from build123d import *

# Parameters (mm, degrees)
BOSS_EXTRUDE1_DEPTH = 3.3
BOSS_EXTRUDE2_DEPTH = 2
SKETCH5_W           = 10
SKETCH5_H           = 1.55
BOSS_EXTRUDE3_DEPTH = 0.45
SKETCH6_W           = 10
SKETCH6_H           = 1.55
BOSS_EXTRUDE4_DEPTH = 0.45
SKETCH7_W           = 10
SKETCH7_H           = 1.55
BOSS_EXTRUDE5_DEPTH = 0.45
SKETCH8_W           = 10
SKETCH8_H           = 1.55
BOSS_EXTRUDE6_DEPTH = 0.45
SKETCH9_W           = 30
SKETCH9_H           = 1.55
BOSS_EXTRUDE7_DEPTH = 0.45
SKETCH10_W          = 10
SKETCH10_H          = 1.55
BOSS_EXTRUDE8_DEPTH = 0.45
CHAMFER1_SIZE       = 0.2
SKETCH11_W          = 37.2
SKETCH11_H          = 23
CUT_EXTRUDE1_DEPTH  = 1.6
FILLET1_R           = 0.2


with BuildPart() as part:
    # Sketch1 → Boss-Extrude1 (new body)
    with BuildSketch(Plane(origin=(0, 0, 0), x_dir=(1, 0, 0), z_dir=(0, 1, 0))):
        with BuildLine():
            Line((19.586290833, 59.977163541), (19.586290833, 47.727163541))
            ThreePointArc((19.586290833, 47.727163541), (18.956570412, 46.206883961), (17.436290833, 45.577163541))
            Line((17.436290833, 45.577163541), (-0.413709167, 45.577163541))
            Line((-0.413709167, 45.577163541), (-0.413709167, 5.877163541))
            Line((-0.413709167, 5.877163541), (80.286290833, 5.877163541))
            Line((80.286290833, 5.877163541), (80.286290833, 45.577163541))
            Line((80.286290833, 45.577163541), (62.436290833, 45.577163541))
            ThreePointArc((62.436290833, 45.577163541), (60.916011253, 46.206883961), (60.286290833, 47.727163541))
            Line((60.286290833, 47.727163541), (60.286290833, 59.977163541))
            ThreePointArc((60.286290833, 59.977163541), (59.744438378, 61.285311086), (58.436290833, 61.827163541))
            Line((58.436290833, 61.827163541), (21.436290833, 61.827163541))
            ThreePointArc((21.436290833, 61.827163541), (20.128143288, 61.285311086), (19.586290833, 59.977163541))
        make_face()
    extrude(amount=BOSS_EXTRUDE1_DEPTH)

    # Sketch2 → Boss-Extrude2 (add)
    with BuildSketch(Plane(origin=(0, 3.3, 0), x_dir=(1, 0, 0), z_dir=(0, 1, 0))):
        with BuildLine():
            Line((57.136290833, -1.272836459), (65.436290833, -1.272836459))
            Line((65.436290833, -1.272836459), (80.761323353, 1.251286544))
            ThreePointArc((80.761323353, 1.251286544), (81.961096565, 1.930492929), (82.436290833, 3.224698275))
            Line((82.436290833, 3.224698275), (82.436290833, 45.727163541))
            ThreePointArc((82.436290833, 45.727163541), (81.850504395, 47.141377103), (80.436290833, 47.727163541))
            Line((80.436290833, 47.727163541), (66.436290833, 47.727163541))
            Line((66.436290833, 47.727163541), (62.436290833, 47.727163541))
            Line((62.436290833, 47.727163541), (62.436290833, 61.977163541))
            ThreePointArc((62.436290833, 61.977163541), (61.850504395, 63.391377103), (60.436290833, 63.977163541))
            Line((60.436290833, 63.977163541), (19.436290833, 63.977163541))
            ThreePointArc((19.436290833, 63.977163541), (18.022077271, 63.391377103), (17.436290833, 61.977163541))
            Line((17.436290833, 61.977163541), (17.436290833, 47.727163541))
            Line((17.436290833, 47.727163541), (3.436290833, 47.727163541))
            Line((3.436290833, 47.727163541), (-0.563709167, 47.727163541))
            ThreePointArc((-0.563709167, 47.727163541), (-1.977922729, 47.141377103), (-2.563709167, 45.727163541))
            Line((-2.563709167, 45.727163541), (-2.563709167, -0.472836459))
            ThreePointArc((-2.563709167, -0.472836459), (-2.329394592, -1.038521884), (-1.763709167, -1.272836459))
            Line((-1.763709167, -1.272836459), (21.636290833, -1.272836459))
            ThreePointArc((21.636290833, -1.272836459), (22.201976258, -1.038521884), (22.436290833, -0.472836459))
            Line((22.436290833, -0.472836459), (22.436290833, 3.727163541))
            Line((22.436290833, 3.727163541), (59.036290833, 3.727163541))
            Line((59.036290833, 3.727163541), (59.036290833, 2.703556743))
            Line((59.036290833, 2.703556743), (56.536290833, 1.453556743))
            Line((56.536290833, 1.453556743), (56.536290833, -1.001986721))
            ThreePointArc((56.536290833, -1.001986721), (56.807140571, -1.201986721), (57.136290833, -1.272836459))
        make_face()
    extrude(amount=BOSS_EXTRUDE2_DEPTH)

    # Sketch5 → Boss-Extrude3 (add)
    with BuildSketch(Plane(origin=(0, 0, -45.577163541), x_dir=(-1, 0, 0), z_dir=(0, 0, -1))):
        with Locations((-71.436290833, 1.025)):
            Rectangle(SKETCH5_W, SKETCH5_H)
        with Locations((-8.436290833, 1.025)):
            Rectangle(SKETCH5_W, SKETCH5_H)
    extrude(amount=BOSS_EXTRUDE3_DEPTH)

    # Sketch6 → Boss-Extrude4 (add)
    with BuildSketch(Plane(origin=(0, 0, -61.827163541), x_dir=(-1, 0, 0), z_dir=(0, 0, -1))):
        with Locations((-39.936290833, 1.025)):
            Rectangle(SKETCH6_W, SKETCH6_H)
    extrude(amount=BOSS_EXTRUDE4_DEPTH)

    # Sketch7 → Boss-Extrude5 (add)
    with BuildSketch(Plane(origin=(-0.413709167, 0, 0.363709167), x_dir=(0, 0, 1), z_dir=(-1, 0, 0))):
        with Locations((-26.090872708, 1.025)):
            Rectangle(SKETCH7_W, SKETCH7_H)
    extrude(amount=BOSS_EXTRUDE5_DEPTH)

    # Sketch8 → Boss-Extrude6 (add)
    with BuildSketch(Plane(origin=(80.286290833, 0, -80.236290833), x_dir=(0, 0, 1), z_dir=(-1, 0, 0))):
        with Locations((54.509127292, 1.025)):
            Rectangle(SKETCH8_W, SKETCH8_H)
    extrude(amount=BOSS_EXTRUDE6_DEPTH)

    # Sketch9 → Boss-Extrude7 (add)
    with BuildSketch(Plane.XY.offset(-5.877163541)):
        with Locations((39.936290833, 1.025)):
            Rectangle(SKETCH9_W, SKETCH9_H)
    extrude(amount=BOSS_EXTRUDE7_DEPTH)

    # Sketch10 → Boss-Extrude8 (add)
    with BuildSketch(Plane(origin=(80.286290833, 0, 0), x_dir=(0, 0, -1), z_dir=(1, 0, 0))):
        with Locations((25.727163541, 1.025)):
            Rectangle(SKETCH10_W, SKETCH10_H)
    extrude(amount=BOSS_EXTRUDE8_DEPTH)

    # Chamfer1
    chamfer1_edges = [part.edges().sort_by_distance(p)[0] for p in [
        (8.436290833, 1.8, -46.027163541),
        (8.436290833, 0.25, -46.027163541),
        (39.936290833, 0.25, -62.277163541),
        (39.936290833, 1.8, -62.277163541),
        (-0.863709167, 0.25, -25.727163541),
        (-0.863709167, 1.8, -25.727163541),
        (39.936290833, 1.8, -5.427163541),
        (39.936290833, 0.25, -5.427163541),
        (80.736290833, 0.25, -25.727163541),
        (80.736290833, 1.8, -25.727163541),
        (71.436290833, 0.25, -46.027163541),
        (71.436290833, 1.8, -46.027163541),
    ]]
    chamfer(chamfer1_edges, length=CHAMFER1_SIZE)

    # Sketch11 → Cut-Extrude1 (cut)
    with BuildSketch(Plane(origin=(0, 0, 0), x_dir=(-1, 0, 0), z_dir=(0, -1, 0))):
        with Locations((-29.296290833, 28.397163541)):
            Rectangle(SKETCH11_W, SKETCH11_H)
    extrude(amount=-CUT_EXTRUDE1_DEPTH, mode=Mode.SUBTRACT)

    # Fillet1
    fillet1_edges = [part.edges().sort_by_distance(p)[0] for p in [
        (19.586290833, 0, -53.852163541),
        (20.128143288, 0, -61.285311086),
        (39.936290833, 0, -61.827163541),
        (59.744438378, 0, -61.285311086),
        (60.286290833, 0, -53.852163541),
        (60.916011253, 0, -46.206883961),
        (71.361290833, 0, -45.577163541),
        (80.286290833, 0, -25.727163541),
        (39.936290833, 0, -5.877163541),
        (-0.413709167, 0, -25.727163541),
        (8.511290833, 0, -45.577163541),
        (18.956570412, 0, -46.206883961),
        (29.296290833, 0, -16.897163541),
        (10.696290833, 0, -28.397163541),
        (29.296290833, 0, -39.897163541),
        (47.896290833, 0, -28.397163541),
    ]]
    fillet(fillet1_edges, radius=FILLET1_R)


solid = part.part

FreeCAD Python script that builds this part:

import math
import FreeCAD as App
import Part
import Sketcher

V = App.Vector


def edges_at(feature, points):
    """Names of the edges that pass closest to the given points."""
    edges = feature.Shape.Edges
    near = lambda p: min(range(len(edges)), key=lambda i: edges[i].distToShape(Part.Vertex(*p))[0])
    return sorted({f"Edge{near(p) + 1}" for p in points})

doc = App.newDocument("Part")
body = doc.addObject("PartDesign::Body", "Body")

# Sketch on XZ plane
sketch1 = body.newObject("Sketcher::SketchObject", "Sketch")
sketch1.AttachmentSupport = (doc.getObject("XZ_Plane"), [""])
sketch1.MapMode = "FlatFace"
sketch1.addGeometry(Part.LineSegment(V(19.6, -60, 0), V(19.6, -47.7, 0)), False)
sketch1.addGeometry(Part.ArcOfCircle(Part.Circle(V(17.4, -47.7, 0), V(0, 0, 1), 2.1), math.radians(0), math.radians(90)), False)
sketch1.addGeometry(Part.LineSegment(V(17.4, -45.6, 0), V(-0.4, -45.6, 0)), False)
sketch1.addGeometry(Part.LineSegment(V(-0.4, -45.6, 0), V(-0.4, -5.9, 0)), False)
sketch1.addGeometry(Part.LineSegment(V(-0.4, -5.9, 0), V(80.3, -5.9, 0)), False)
sketch1.addGeometry(Part.LineSegment(V(80.3, -5.9, 0), V(80.3, -45.6, 0)), False)
sketch1.addGeometry(Part.LineSegment(V(80.3, -45.6, 0), V(62.4, -45.6, 0)), False)
sketch1.addGeometry(Part.ArcOfCircle(Part.Circle(V(62.4, -47.7, 0), V(0, 0, 1), 2.1), math.radians(90), math.radians(180)), False)
sketch1.addGeometry(Part.LineSegment(V(60.3, -47.7, 0), V(60.3, -60, 0)), False)
sketch1.addGeometry(Part.ArcOfCircle(Part.Circle(V(58.4, -60, 0), V(0, 0, 1), 1.9), math.radians(-90), math.radians(0)), False)
sketch1.addGeometry(Part.LineSegment(V(58.4, -61.8, 0), V(21.4, -61.8, 0)), False)
sketch1.addGeometry(Part.ArcOfCircle(Part.Circle(V(21.4, -60, 0), V(0, 0, 1), 1.9), math.radians(-180), math.radians(-90)), False)
sketch1.addConstraint(Sketcher.Constraint("Tangent", 0, 2, 1, 1))
sketch1.addConstraint(Sketcher.Constraint("Tangent", 1, 2, 2, 1))
sketch1.addConstraint(Sketcher.Constraint("Coincident", 2, 2, 3, 1))
sketch1.addConstraint(Sketcher.Constraint("Coincident", 3, 2, 4, 1))
sketch1.addConstraint(Sketcher.Constraint("Coincident", 4, 2, 5, 1))
sketch1.addConstraint(Sketcher.Constraint("Coincident", 5, 2, 6, 1))
sketch1.addConstraint(Sketcher.Constraint("Tangent", 6, 2, 7, 1))
sketch1.addConstraint(Sketcher.Constraint("Tangent", 7, 2, 8, 1))
sketch1.addConstraint(Sketcher.Constraint("Tangent", 8, 2, 9, 2))
sketch1.addConstraint(Sketcher.Constraint("Tangent", 9, 1, 10, 1))
sketch1.addConstraint(Sketcher.Constraint("Tangent", 10, 2, 11, 2))
sketch1.addConstraint(Sketcher.Constraint("Tangent", 11, 1, 0, 1))
sketch1.addConstraint(Sketcher.Constraint("Vertical", 0))
sketch1.addConstraint(Sketcher.Constraint("Horizontal", 2))
sketch1.addConstraint(Sketcher.Constraint("Vertical", 3))
sketch1.addConstraint(Sketcher.Constraint("Horizontal", 4))
sketch1.addConstraint(Sketcher.Constraint("Vertical", 5))
sketch1.addConstraint(Sketcher.Constraint("Horizontal", 6))
sketch1.addConstraint(Sketcher.Constraint("Vertical", 8))
sketch1.addConstraint(Sketcher.Constraint("Horizontal", 10))
sketch1.addConstraint(Sketcher.Constraint("Equal", 1, 7))
sketch1.addConstraint(Sketcher.Constraint("Equal", 9, 11))
sketch1.addConstraint(Sketcher.Constraint("Horizontal", 1, 3, 7, 3))
sketch1.addConstraint(Sketcher.Constraint("Equal", 2, 6))
sketch1.addConstraint(Sketcher.Constraint("DistanceX", 10, 2, 10, 1, 37.0))
sketch1.addConstraint(Sketcher.Constraint("Radius", 1, 2.15))
sketch1.addConstraint(Sketcher.Constraint("Radius", 9, 1.85))
sketch1.addConstraint(Sketcher.Constraint("DistanceX", 4, 1, 4, 2, 80.7))
sketch1.addConstraint(Sketcher.Constraint("DistanceY", 3, 1, 3, 2, 39.7))
sketch1.addConstraint(Sketcher.Constraint("DistanceY", 0, 1, 0, 2, 12.25))
sketch1.addConstraint(Sketcher.Constraint("DistanceX", -1, 1, 1, 3, 17.436291))
sketch1.addConstraint(Sketcher.Constraint("DistanceY", 1, 3, -1, 1, 47.727164))
pad1 = body.newObject("PartDesign::Pad", "Pad")
pad1.Profile = sketch1
pad1.Length = 3.3
pad1.Reversed = True

# Sketch on XZ plane
sketch2 = body.newObject("Sketcher::SketchObject", "Sketch001")
sketch2.AttachmentSupport = (doc.getObject("XZ_Plane"), [""])
sketch2.MapMode = "FlatFace"
sketch2.AttachmentOffset = App.Placement(V(0, 0, -3.3), App.Rotation())
sketch2.addGeometry(Part.LineSegment(V(57.1, 1.3, 0), V(65.4, 1.3, 0)), False)
sketch2.addGeometry(Part.LineSegment(V(65.4, 1.3, 0), V(80.8, -1.3, 0)), False)
sketch2.addGeometry(Part.ArcOfCircle(Part.Circle(V(80.4, -3.2, 0), V(0, 0, 1), 2), math.radians(0), math.radians(81)), False)
sketch2.addGeometry(Part.LineSegment(V(82.4, -3.2, 0), V(82.4, -45.7, 0)), False)
sketch2.addGeometry(Part.ArcOfCircle(Part.Circle(V(80.4, -45.7, 0), V(0, 0, 1), 2), math.radians(-90), math.radians(0)), False)
sketch2.addGeometry(Part.LineSegment(V(80.4, -47.7, 0), V(62.4, -47.7, 0)), False)
sketch2.addGeometry(Part.LineSegment(V(62.4, -47.7, 0), V(62.4, -62, 0)), False)
sketch2.addGeometry(Part.ArcOfCircle(Part.Circle(V(60.4, -62, 0), V(0, 0, 1), 2), math.radians(-90), math.radians(0)), False)
sketch2.addGeometry(Part.LineSegment(V(60.4, -64, 0), V(19.4, -64, 0)), False)
sketch2.addGeometry(Part.ArcOfCircle(Part.Circle(V(19.4, -62, 0), V(0, 0, 1), 2), math.radians(-180), math.radians(-90)), False)
sketch2.addGeometry(Part.LineSegment(V(17.4, -62, 0), V(17.4, -47.7, 0)), False)
sketch2.addGeometry(Part.LineSegment(V(17.4, -47.7, 0), V(-0.6, -47.7, 0)), False)
sketch2.addGeometry(Part.ArcOfCircle(Part.Circle(V(-0.6, -45.7, 0), V(0, 0, 1), 2), math.radians(-180), math.radians(-90)), False)
sketch2.addGeometry(Part.LineSegment(V(-2.6, -45.7, 0), V(-2.6, 0.5, 0)), False)
sketch2.addGeometry(Part.ArcOfCircle(Part.Circle(V(-1.8, 0.5, 0), V(0, 0, 1), 0.8), math.radians(90), math.radians(180)), False)
sketch2.addGeometry(Part.LineSegment(V(-1.8, 1.3, 0), V(21.6, 1.3, 0)), False)
sketch2.addGeometry(Part.ArcOfCircle(Part.Circle(V(21.6, 0.5, 0), V(0, 0, 1), 0.8), math.radians(0), math.radians(90)), False)
sketch2.addGeometry(Part.LineSegment(V(22.4, 0.5, 0), V(22.4, -3.7, 0)), False)
sketch2.addGeometry(Part.LineSegment(V(22.4, -3.7, 0), V(59, -3.7, 0)), False)
sketch2.addGeometry(Part.LineSegment(V(59, -3.7, 0), V(59, -2.7, 0)), False)
sketch2.addGeometry(Part.LineSegment(V(59, -2.7, 0), V(56.5, -1.5, 0)), False)
sketch2.addGeometry(Part.LineSegment(V(56.5, -1.5, 0), V(56.5, 1, 0)), False)
sketch2.addGeometry(Part.ArcOfCircle(Part.Circle(V(57.1, 0.5, 0), V(0, 0, 1), 0.8), math.radians(90), math.radians(139)), False)
sketch2.addConstraint(Sketcher.Constraint("Coincident", 0, 2, 1, 1))
sketch2.addConstraint(Sketcher.Constraint("Tangent", 1, 2, 2, 2))
sketch2.addConstraint(Sketcher.Constraint("Tangent", 2, 1, 3, 1))
sketch2.addConstraint(Sketcher.Constraint("Tangent", 3, 2, 4, 2))
sketch2.addConstraint(Sketcher.Constraint("Tangent", 4, 1, 5, 1))
sketch2.addConstraint(Sketcher.Constraint("Coincident", 5, 2, 6, 1))
sketch2.addConstraint(Sketcher.Constraint("Tangent", 6, 2, 7, 2))
sketch2.addConstraint(Sketcher.Constraint("Tangent", 7, 1, 8, 1))
sketch2.addConstraint(Sketcher.Constraint("Tangent", 8, 2, 9, 2))
sketch2.addConstraint(Sketcher.Constraint("Tangent", 9, 1, 10, 1))
sketch2.addConstraint(Sketcher.Constraint("Coincident", 10, 2, 11, 1))
sketch2.addConstraint(Sketcher.Constraint("Tangent", 11, 2, 12, 2))
sketch2.addConstraint(Sketcher.Constraint("Tangent", 12, 1, 13, 1))
sketch2.addConstraint(Sketcher.Constraint("Tangent", 13, 2, 14, 2))
sketch2.addConstraint(Sketcher.Constraint("Tangent", 14, 1, 15, 1))
sketch2.addConstraint(Sketcher.Constraint("Tangent", 15, 2, 16, 2))
sketch2.addConstraint(Sketcher.Constraint("Tangent", 16, 1, 17, 1))
sketch2.addConstraint(Sketcher.Constraint("Coincident", 17, 2, 18, 1))
sketch2.addConstraint(Sketcher.Constraint("Coincident", 18, 2, 19, 1))
sketch2.addConstraint(Sketcher.Constraint("Coincident", 19, 2, 20, 1))
sketch2.addConstraint(Sketcher.Constraint("Coincident", 20, 2, 21, 1))
sketch2.addConstraint(Sketcher.Constraint("Coincident", 21, 2, 22, 2))
sketch2.addConstraint(Sketcher.Constraint("Tangent", 22, 1, 0, 1))
sketch2.addConstraint(Sketcher.Constraint("Horizontal", 0))
sketch2.addConstraint(Sketcher.Constraint("Vertical", 3))
sketch2.addConstraint(Sketcher.Constraint("Horizontal", 5))
sketch2.addConstraint(Sketcher.Constraint("Vertical", 6))
sketch2.addConstraint(Sketcher.Constraint("Horizontal", 8))
sketch2.addConstraint(Sketcher.Constraint("Vertical", 10))
sketch2.addConstraint(Sketcher.Constraint("Horizontal", 11))
sketch2.addConstraint(Sketcher.Constraint("Vertical", 13))
sketch2.addConstraint(Sketcher.Constraint("Horizontal", 15))
sketch2.addConstraint(Sketcher.Constraint("Vertical", 17))
sketch2.addConstraint(Sketcher.Constraint("Horizontal", 18))
sketch2.addConstraint(Sketcher.Constraint("Vertical", 19))
sketch2.addConstraint(Sketcher.Constraint("Vertical", 21))
sketch2.addConstraint(Sketcher.Constraint("Equal", 2, 4))
sketch2.addConstraint(Sketcher.Constraint("Equal", 4, 7))
sketch2.addConstraint(Sketcher.Constraint("Equal", 7, 9))
sketch2.addConstraint(Sketcher.Constraint("Equal", 9, 12))
sketch2.addConstraint(Sketcher.Constraint("Equal", 14, 16))
sketch2.addConstraint(Sketcher.Constraint("Equal", 16, 22))
sketch2.addConstraint(Sketcher.Constraint("Horizontal", 4, 3, 12, 3))
sketch2.addConstraint(Sketcher.Constraint("Horizontal", 16, 3, 22, 3))
sketch2.addConstraint(Sketcher.Constraint("Equal", 5, 11))
sketch2.addConstraint(Sketcher.Constraint("Radius", 2, 2.0))
sketch2.addConstraint(Sketcher.Constraint("Radius", 14, 0.8))
sketch2.addConstraint(Sketcher.Constraint("DistanceX", 5, 2, 5, 1, 18.0))
sketch2.addConstraint(Sketcher.Constraint("DistanceX", 8, 2, 8, 1, 41.0))
sketch2.addConstraint(Sketcher.Constraint("DistanceX", 0, 1, 0, 2, 8.3))
sketch2.addConstraint(Sketcher.Constraint("DistanceX", 15, 1, 15, 2, 23.4))
sketch2.addConstraint(Sketcher.Constraint("DistanceX", 18, 1, 18, 2, 36.6))
sketch2.addConstraint(Sketcher.Constraint("DistanceY", 13, 1, 13, 2, 46.2))
sketch2.addConstraint(Sketcher.Constraint("DistanceY", 17, 2, 17, 1, 4.2))
sketch2.addConstraint(Sketcher.Constraint("DistanceX", 0, 2, 2, 3, 15.0))
sketch2.addConstraint(Sketcher.Constraint("DistanceY", 6, 2, 6, 1, 14.25))
sketch2.addConstraint(Sketcher.Constraint("DistanceX", 20, 2, 22, 3, 0.6))
sketch2.addConstraint(Sketcher.Constraint("DistanceY", 19, 2, 20, 2, 1.25))
sketch2.addConstraint(Sketcher.Constraint("DistanceY", 2, 3, -1, 1, 3.224698))
sketch2.addConstraint(Sketcher.Constraint("Distance", 1, 15.531511))
sketch2.addConstraint(Sketcher.Constraint("DistanceY", 19, 1, 19, 2, 1.023607))
sketch2.addConstraint(Sketcher.Constraint("DistanceX", -1, 1, 2, 3, 80.436291))
pad2 = body.newObject("PartDesign::Pad", "Pad001")
pad2.Profile = sketch2
pad2.Length = 2
pad2.Reversed = True

# Sketch on XY plane
sketch3 = body.newObject("Sketcher::SketchObject", "Sketch002")
sketch3.AttachmentSupport = (doc.getObject("XY_Plane"), [""])
sketch3.MapMode = "FlatFace"
sketch3.AttachmentOffset = App.Placement(V(0, 0, -45.577164), App.Rotation())
sketch3.addGeometry(Part.LineSegment(V(76.4, 1.8, 0), V(76.4, 0.2, 0)), False)
sketch3.addGeometry(Part.LineSegment(V(76.4, 0.2, 0), V(66.4, 0.2, 0)), False)
sketch3.addGeometry(Part.LineSegment(V(66.4, 0.2, 0), V(66.4, 1.8, 0)), False)
sketch3.addGeometry(Part.LineSegment(V(66.4, 1.8, 0), V(76.4, 1.8, 0)), False)
sketch3.addGeometry(Part.LineSegment(V(13.4, 1.8, 0), V(13.4, 0.2, 0)), False)
sketch3.addGeometry(Part.LineSegment(V(13.4, 0.2, 0), V(3.4, 0.2, 0)), False)
sketch3.addGeometry(Part.LineSegment(V(3.4, 0.2, 0), V(3.4, 1.8, 0)), False)
sketch3.addGeometry(Part.LineSegment(V(3.4, 1.8, 0), V(13.4, 1.8, 0)), False)
sketch3.addConstraint(Sketcher.Constraint("Coincident", 0, 2, 1, 1))
sketch3.addConstraint(Sketcher.Constraint("Coincident", 1, 2, 2, 1))
sketch3.addConstraint(Sketcher.Constraint("Coincident", 2, 2, 3, 1))
sketch3.addConstraint(Sketcher.Constraint("Coincident", 3, 2, 0, 1))
sketch3.addConstraint(Sketcher.Constraint("Coincident", 4, 2, 5, 1))
sketch3.addConstraint(Sketcher.Constraint("Coincident", 5, 2, 6, 1))
sketch3.addConstraint(Sketcher.Constraint("Coincident", 6, 2, 7, 1))
sketch3.addConstraint(Sketcher.Constraint("Coincident", 7, 2, 4, 1))
sketch3.addConstraint(Sketcher.Constraint("Vertical", 0))
sketch3.addConstraint(Sketcher.Constraint("Horizontal", 1))
sketch3.addConstraint(Sketcher.Constraint("Vertical", 2))
sketch3.addConstraint(Sketcher.Constraint("Horizontal", 3))
sketch3.addConstraint(Sketcher.Constraint("Vertical", 4))
sketch3.addConstraint(Sketcher.Constraint("Horizontal", 5))
sketch3.addConstraint(Sketcher.Constraint("Vertical", 6))
sketch3.addConstraint(Sketcher.Constraint("Horizontal", 7))
sketch3.addConstraint(Sketcher.Constraint("Horizontal", 1, 2, 4, 2))
sketch3.addConstraint(Sketcher.Constraint("Horizontal", 3, 2, 6, 2))
sketch3.addConstraint(Sketcher.Constraint("Equal", 3, 5))
sketch3.addConstraint(Sketcher.Constraint("DistanceX", 1, 2, 1, 1, 10.0))
sketch3.addConstraint(Sketcher.Constraint("DistanceX", 4, 2, 1, 2, 53.0))
sketch3.addConstraint(Sketcher.Constraint("DistanceY", 0, 2, 0, 1, 1.55))
sketch3.addConstraint(Sketcher.Constraint("DistanceY", -1, 1, 2, 2, 1.8))
sketch3.addConstraint(Sketcher.Constraint("DistanceX", -1, 1, 0, 2, 76.436291))
pad3 = body.newObject("PartDesign::Pad", "Pad002")
pad3.Profile = sketch3
pad3.Length = 0.45
pad3.Reversed = True

# Sketch on XY plane
sketch4 = body.newObject("Sketcher::SketchObject", "Sketch003")
sketch4.AttachmentSupport = (doc.getObject("XY_Plane"), [""])
sketch4.MapMode = "FlatFace"
sketch4.AttachmentOffset = App.Placement(V(0, 0, -61.827164), App.Rotation())
sketch4.addGeometry(Part.LineSegment(V(44.9, 1.8, 0), V(44.9, 0.2, 0)), False)
sketch4.addGeometry(Part.LineSegment(V(44.9, 0.2, 0), V(34.9, 0.2, 0)), False)
sketch4.addGeometry(Part.LineSegment(V(34.9, 0.2, 0), V(34.9, 1.8, 0)), False)
sketch4.addGeometry(Part.LineSegment(V(34.9, 1.8, 0), V(44.9, 1.8, 0)), False)
sketch4.addConstraint(Sketcher.Constraint("Coincident", 0, 2, 1, 1))
sketch4.addConstraint(Sketcher.Constraint("Coincident", 1, 2, 2, 1))
sketch4.addConstraint(Sketcher.Constraint("Coincident", 2, 2, 3, 1))
sketch4.addConstraint(Sketcher.Constraint("Coincident", 3, 2, 0, 1))
sketch4.addConstraint(Sketcher.Constraint("Vertical", 0))
sketch4.addConstraint(Sketcher.Constraint("Horizontal", 1))
sketch4.addConstraint(Sketcher.Constraint("Vertical", 2))
sketch4.addConstraint(Sketcher.Constraint("Horizontal", 3))
sketch4.addConstraint(Sketcher.Constraint("DistanceX", 1, 2, 1, 1, 10.0))
sketch4.addConstraint(Sketcher.Constraint("DistanceY", 0, 2, 0, 1, 1.55))
sketch4.addConstraint(Sketcher.Constraint("DistanceY", -1, 1, 2, 2, 1.8))
sketch4.addConstraint(Sketcher.Constraint("DistanceX", -1, 1, 0, 2, 44.936291))
pad4 = body.newObject("PartDesign::Pad", "Pad003")
pad4.Profile = sketch4
pad4.Length = 0.45
pad4.Reversed = True

# Sketch on YZ plane
sketch5 = body.newObject("Sketcher::SketchObject", "Sketch004")
sketch5.AttachmentSupport = (doc.getObject("YZ_Plane"), [""])
sketch5.MapMode = "FlatFace"
sketch5.AttachmentOffset = App.Placement(V(0, 0, -0.413709), App.Rotation())
sketch5.addGeometry(Part.LineSegment(V(1.8, -30.7, 0), V(0.2, -30.7, 0)), False)
sketch5.addGeometry(Part.LineSegment(V(0.2, -30.7, 0), V(0.2, -20.7, 0)), False)
sketch5.addGeometry(Part.LineSegment(V(0.2, -20.7, 0), V(1.8, -20.7, 0)), False)
sketch5.addGeometry(Part.LineSegment(V(1.8, -20.7, 0), V(1.8, -30.7, 0)), False)
sketch5.addConstraint(Sketcher.Constraint("Coincident", 0, 2, 1, 1))
sketch5.addConstraint(Sketcher.Constraint("Coincident", 1, 2, 2, 1))
sketch5.addConstraint(Sketcher.Constraint("Coincident", 2, 2, 3, 1))
sketch5.addConstraint(Sketcher.Constraint("Coincident", 3, 2, 0, 1))
sketch5.addConstraint(Sketcher.Constraint("Horizontal", 0))
sketch5.addConstraint(Sketcher.Constraint("Vertical", 1))
sketch5.addConstraint(Sketcher.Constraint("Horizontal", 2))
sketch5.addConstraint(Sketcher.Constraint("Vertical", 3))
sketch5.addConstraint(Sketcher.Constraint("DistanceY", 1, 1, 1, 2, 10.0))
sketch5.addConstraint(Sketcher.Constraint("DistanceX", 0, 2, 0, 1, 1.55))
sketch5.addConstraint(Sketcher.Constraint("DistanceX", -1, 1, 2, 2, 1.8))
sketch5.addConstraint(Sketcher.Constraint("DistanceY", 0, 2, -1, 1, 30.727164))
pad5 = body.newObject("PartDesign::Pad", "Pad004")
pad5.Profile = sketch5
pad5.Length = 0.45
pad5.Reversed = True

# Sketch on YZ plane
sketch6 = body.newObject("Sketcher::SketchObject", "Sketch005")
sketch6.AttachmentSupport = (doc.getObject("YZ_Plane"), [""])
sketch6.MapMode = "FlatFace"
sketch6.AttachmentOffset = App.Placement(V(0, 0, 80.286291), App.Rotation())
sketch6.addGeometry(Part.LineSegment(V(1.8, -30.7, 0), V(0.2, -30.7, 0)), False)
sketch6.addGeometry(Part.LineSegment(V(0.2, -30.7, 0), V(0.2, -20.7, 0)), False)
sketch6.addGeometry(Part.LineSegment(V(0.2, -20.7, 0), V(1.8, -20.7, 0)), False)
sketch6.addGeometry(Part.LineSegment(V(1.8, -20.7, 0), V(1.8, -30.7, 0)), False)
sketch6.addConstraint(Sketcher.Constraint("Coincident", 0, 2, 1, 1))
sketch6.addConstraint(Sketcher.Constraint("Coincident", 1, 2, 2, 1))
sketch6.addConstraint(Sketcher.Constraint("Coincident", 2, 2, 3, 1))
sketch6.addConstraint(Sketcher.Constraint("Coincident", 3, 2, 0, 1))
sketch6.addConstraint(Sketcher.Constraint("Horizontal", 0))
sketch6.addConstraint(Sketcher.Constraint("Vertical", 1))
sketch6.addConstraint(Sketcher.Constraint("Horizontal", 2))
sketch6.addConstraint(Sketcher.Constraint("Vertical", 3))
sketch6.addConstraint(Sketcher.Constraint("DistanceY", 1, 1, 1, 2, 10.0))
sketch6.addConstraint(Sketcher.Constraint("DistanceX", 0, 2, 0, 1, 1.55))
sketch6.addConstraint(Sketcher.Constraint("DistanceX", -1, 1, 2, 2, 1.8))
sketch6.addConstraint(Sketcher.Constraint("DistanceY", 0, 2, -1, 1, 30.727164))
pad6 = body.newObject("PartDesign::Pad", "Pad005")
pad6.Profile = sketch6
pad6.Length = 0.45
pad6.Reversed = True

# Sketch on XY plane
sketch7 = body.newObject("Sketcher::SketchObject", "Sketch006")
sketch7.AttachmentSupport = (doc.getObject("XY_Plane"), [""])
sketch7.MapMode = "FlatFace"
sketch7.AttachmentOffset = App.Placement(V(0, 0, -5.877164), App.Rotation())
sketch7.addGeometry(Part.LineSegment(V(24.9, 1.8, 0), V(24.9, 0.2, 0)), False)
sketch7.addGeometry(Part.LineSegment(V(24.9, 0.2, 0), V(54.9, 0.2, 0)), False)
sketch7.addGeometry(Part.LineSegment(V(54.9, 0.2, 0), V(54.9, 1.8, 0)), False)
sketch7.addGeometry(Part.LineSegment(V(54.9, 1.8, 0), V(24.9, 1.8, 0)), False)
sketch7.addConstraint(Sketcher.Constraint("Coincident", 0, 2, 1, 1))
sketch7.addConstraint(Sketcher.Constraint("Coincident", 1, 2, 2, 1))
sketch7.addConstraint(Sketcher.Constraint("Coincident", 2, 2, 3, 1))
sketch7.addConstraint(Sketcher.Constraint("Coincident", 3, 2, 0, 1))
sketch7.addConstraint(Sketcher.Constraint("Vertical", 0))
sketch7.addConstraint(Sketcher.Constraint("Horizontal", 1))
sketch7.addConstraint(Sketcher.Constraint("Vertical", 2))
sketch7.addConstraint(Sketcher.Constraint("Horizontal", 3))
sketch7.addConstraint(Sketcher.Constraint("DistanceX", 1, 1, 1, 2, 30.0))
sketch7.addConstraint(Sketcher.Constraint("DistanceY", 0, 2, 0, 1, 1.55))
sketch7.addConstraint(Sketcher.Constraint("DistanceY", -1, 1, 2, 2, 1.8))
sketch7.addConstraint(Sketcher.Constraint("DistanceX", -1, 1, 0, 2, 24.936291))
pad7 = body.newObject("PartDesign::Pad", "Pad006")
pad7.Profile = sketch7
pad7.Length = 0.45

# Sketch on YZ plane
sketch8 = body.newObject("Sketcher::SketchObject", "Sketch007")
sketch8.AttachmentSupport = (doc.getObject("YZ_Plane"), [""])
sketch8.MapMode = "FlatFace"
sketch8.AttachmentOffset = App.Placement(V(0, 0, 80.286291), App.Rotation())
sketch8.addGeometry(Part.LineSegment(V(1.8, -20.7, 0), V(0.2, -20.7, 0)), False)
sketch8.addGeometry(Part.LineSegment(V(0.2, -20.7, 0), V(0.2, -30.7, 0)), False)
sketch8.addGeometry(Part.LineSegment(V(0.2, -30.7, 0), V(1.8, -30.7, 0)), False)
sketch8.addGeometry(Part.LineSegment(V(1.8, -30.7, 0), V(1.8, -20.7, 0)), False)
sketch8.addConstraint(Sketcher.Constraint("Coincident", 0, 2, 1, 1))
sketch8.addConstraint(Sketcher.Constraint("Coincident", 1, 2, 2, 1))
sketch8.addConstraint(Sketcher.Constraint("Coincident", 2, 2, 3, 1))
sketch8.addConstraint(Sketcher.Constraint("Coincident", 3, 2, 0, 1))
sketch8.addConstraint(Sketcher.Constraint("Horizontal", 0))
sketch8.addConstraint(Sketcher.Constraint("Vertical", 1))
sketch8.addConstraint(Sketcher.Constraint("Horizontal", 2))
sketch8.addConstraint(Sketcher.Constraint("Vertical", 3))
sketch8.addConstraint(Sketcher.Constraint("DistanceY", 1, 2, 1, 1, 10.0))
sketch8.addConstraint(Sketcher.Constraint("DistanceX", 0, 2, 0, 1, 1.55))
sketch8.addConstraint(Sketcher.Constraint("DistanceX", -1, 1, 2, 2, 1.8))
sketch8.addConstraint(Sketcher.Constraint("DistanceY", 0, 2, -1, 1, 20.727164))
pad8 = body.newObject("PartDesign::Pad", "Pad007")
pad8.Profile = sketch8
pad8.Length = 0.45
doc.recompute()

chamfer = body.newObject("PartDesign::Chamfer", "Chamfer")
chamfer.Base = (pad8, edges_at(pad8, [
    (8.436, 1.8, -46.027),
    (8.436, 0.25, -46.027),
    (39.936, 0.25, -62.277),
    (39.936, 1.8, -62.277),
    (-0.864, 0.25, -25.727),
    (-0.864, 1.8, -25.727),
    (39.936, 1.8, -5.427),
    (39.936, 0.25, -5.427),
    (80.736, 0.25, -25.727),
    (80.736, 1.8, -25.727),
    (71.436, 0.25, -46.027),
    (71.436, 1.8, -46.027),
]))
chamfer.Size = 0.2

# Sketch on XZ plane
sketch9 = body.newObject("Sketcher::SketchObject", "Sketch008")
sketch9.AttachmentSupport = (doc.getObject("XZ_Plane"), [""])
sketch9.MapMode = "FlatFace"
sketch9.addGeometry(Part.LineSegment(V(48, -40, 0), V(48, -17, 0)), False)
sketch9.addGeometry(Part.LineSegment(V(48, -17, 0), V(11, -17, 0)), False)
sketch9.addGeometry(Part.LineSegment(V(11, -17, 0), V(11, -40, 0)), False)
sketch9.addGeometry(Part.LineSegment(V(11, -40, 0), V(48, -40, 0)), False)
sketch9.addConstraint(Sketcher.Constraint("Coincident", 0, 2, 1, 1))
sketch9.addConstraint(Sketcher.Constraint("Coincident", 1, 2, 2, 1))
sketch9.addConstraint(Sketcher.Constraint("Coincident", 2, 2, 3, 1))
sketch9.addConstraint(Sketcher.Constraint("Coincident", 3, 2, 0, 1))
sketch9.addConstraint(Sketcher.Constraint("Vertical", 0))
sketch9.addConstraint(Sketcher.Constraint("Horizontal", 1))
sketch9.addConstraint(Sketcher.Constraint("Vertical", 2))
sketch9.addConstraint(Sketcher.Constraint("Horizontal", 3))
sketch9.addConstraint(Sketcher.Constraint("DistanceY", 0, 1, 0, 2, 23.0))
sketch9.addConstraint(Sketcher.Constraint("DistanceX", 1, 2, 1, 1, 37.2))
sketch9.addConstraint(Sketcher.Constraint("DistanceX", -1, 1, 0, 2, 47.896291))
sketch9.addConstraint(Sketcher.Constraint("DistanceY", 0, 2, -1, 1, 16.897164))
pocket1 = body.newObject("PartDesign::Pocket", "Pocket")
pocket1.Profile = sketch9
pocket1.Length = 1.6
doc.recompute()

fillet = body.newObject("PartDesign::Fillet", "Fillet")
fillet.Base = (pocket1, edges_at(pocket1, [
    (19.586, 0, -53.852),
    (20.128, 0, -61.285),
    (39.936, 0, -61.827),
    (59.744, 0, -61.285),
    (60.286, 0, -53.852),
    (60.916, 0, -46.207),
    (71.361, 0, -45.577),
    (80.286, 0, -25.727),
    (39.936, 0, -5.877),
    (-0.414, 0, -25.727),
    (8.511, 0, -45.577),
    (18.957, 0, -46.207),
    (29.296, 0, -16.897),
    (10.696, 0, -28.397),
    (29.296, 0, -39.897),
    (47.896, 0, -28.397),
]))
fillet.Radius = 0.2

doc.recompute()
